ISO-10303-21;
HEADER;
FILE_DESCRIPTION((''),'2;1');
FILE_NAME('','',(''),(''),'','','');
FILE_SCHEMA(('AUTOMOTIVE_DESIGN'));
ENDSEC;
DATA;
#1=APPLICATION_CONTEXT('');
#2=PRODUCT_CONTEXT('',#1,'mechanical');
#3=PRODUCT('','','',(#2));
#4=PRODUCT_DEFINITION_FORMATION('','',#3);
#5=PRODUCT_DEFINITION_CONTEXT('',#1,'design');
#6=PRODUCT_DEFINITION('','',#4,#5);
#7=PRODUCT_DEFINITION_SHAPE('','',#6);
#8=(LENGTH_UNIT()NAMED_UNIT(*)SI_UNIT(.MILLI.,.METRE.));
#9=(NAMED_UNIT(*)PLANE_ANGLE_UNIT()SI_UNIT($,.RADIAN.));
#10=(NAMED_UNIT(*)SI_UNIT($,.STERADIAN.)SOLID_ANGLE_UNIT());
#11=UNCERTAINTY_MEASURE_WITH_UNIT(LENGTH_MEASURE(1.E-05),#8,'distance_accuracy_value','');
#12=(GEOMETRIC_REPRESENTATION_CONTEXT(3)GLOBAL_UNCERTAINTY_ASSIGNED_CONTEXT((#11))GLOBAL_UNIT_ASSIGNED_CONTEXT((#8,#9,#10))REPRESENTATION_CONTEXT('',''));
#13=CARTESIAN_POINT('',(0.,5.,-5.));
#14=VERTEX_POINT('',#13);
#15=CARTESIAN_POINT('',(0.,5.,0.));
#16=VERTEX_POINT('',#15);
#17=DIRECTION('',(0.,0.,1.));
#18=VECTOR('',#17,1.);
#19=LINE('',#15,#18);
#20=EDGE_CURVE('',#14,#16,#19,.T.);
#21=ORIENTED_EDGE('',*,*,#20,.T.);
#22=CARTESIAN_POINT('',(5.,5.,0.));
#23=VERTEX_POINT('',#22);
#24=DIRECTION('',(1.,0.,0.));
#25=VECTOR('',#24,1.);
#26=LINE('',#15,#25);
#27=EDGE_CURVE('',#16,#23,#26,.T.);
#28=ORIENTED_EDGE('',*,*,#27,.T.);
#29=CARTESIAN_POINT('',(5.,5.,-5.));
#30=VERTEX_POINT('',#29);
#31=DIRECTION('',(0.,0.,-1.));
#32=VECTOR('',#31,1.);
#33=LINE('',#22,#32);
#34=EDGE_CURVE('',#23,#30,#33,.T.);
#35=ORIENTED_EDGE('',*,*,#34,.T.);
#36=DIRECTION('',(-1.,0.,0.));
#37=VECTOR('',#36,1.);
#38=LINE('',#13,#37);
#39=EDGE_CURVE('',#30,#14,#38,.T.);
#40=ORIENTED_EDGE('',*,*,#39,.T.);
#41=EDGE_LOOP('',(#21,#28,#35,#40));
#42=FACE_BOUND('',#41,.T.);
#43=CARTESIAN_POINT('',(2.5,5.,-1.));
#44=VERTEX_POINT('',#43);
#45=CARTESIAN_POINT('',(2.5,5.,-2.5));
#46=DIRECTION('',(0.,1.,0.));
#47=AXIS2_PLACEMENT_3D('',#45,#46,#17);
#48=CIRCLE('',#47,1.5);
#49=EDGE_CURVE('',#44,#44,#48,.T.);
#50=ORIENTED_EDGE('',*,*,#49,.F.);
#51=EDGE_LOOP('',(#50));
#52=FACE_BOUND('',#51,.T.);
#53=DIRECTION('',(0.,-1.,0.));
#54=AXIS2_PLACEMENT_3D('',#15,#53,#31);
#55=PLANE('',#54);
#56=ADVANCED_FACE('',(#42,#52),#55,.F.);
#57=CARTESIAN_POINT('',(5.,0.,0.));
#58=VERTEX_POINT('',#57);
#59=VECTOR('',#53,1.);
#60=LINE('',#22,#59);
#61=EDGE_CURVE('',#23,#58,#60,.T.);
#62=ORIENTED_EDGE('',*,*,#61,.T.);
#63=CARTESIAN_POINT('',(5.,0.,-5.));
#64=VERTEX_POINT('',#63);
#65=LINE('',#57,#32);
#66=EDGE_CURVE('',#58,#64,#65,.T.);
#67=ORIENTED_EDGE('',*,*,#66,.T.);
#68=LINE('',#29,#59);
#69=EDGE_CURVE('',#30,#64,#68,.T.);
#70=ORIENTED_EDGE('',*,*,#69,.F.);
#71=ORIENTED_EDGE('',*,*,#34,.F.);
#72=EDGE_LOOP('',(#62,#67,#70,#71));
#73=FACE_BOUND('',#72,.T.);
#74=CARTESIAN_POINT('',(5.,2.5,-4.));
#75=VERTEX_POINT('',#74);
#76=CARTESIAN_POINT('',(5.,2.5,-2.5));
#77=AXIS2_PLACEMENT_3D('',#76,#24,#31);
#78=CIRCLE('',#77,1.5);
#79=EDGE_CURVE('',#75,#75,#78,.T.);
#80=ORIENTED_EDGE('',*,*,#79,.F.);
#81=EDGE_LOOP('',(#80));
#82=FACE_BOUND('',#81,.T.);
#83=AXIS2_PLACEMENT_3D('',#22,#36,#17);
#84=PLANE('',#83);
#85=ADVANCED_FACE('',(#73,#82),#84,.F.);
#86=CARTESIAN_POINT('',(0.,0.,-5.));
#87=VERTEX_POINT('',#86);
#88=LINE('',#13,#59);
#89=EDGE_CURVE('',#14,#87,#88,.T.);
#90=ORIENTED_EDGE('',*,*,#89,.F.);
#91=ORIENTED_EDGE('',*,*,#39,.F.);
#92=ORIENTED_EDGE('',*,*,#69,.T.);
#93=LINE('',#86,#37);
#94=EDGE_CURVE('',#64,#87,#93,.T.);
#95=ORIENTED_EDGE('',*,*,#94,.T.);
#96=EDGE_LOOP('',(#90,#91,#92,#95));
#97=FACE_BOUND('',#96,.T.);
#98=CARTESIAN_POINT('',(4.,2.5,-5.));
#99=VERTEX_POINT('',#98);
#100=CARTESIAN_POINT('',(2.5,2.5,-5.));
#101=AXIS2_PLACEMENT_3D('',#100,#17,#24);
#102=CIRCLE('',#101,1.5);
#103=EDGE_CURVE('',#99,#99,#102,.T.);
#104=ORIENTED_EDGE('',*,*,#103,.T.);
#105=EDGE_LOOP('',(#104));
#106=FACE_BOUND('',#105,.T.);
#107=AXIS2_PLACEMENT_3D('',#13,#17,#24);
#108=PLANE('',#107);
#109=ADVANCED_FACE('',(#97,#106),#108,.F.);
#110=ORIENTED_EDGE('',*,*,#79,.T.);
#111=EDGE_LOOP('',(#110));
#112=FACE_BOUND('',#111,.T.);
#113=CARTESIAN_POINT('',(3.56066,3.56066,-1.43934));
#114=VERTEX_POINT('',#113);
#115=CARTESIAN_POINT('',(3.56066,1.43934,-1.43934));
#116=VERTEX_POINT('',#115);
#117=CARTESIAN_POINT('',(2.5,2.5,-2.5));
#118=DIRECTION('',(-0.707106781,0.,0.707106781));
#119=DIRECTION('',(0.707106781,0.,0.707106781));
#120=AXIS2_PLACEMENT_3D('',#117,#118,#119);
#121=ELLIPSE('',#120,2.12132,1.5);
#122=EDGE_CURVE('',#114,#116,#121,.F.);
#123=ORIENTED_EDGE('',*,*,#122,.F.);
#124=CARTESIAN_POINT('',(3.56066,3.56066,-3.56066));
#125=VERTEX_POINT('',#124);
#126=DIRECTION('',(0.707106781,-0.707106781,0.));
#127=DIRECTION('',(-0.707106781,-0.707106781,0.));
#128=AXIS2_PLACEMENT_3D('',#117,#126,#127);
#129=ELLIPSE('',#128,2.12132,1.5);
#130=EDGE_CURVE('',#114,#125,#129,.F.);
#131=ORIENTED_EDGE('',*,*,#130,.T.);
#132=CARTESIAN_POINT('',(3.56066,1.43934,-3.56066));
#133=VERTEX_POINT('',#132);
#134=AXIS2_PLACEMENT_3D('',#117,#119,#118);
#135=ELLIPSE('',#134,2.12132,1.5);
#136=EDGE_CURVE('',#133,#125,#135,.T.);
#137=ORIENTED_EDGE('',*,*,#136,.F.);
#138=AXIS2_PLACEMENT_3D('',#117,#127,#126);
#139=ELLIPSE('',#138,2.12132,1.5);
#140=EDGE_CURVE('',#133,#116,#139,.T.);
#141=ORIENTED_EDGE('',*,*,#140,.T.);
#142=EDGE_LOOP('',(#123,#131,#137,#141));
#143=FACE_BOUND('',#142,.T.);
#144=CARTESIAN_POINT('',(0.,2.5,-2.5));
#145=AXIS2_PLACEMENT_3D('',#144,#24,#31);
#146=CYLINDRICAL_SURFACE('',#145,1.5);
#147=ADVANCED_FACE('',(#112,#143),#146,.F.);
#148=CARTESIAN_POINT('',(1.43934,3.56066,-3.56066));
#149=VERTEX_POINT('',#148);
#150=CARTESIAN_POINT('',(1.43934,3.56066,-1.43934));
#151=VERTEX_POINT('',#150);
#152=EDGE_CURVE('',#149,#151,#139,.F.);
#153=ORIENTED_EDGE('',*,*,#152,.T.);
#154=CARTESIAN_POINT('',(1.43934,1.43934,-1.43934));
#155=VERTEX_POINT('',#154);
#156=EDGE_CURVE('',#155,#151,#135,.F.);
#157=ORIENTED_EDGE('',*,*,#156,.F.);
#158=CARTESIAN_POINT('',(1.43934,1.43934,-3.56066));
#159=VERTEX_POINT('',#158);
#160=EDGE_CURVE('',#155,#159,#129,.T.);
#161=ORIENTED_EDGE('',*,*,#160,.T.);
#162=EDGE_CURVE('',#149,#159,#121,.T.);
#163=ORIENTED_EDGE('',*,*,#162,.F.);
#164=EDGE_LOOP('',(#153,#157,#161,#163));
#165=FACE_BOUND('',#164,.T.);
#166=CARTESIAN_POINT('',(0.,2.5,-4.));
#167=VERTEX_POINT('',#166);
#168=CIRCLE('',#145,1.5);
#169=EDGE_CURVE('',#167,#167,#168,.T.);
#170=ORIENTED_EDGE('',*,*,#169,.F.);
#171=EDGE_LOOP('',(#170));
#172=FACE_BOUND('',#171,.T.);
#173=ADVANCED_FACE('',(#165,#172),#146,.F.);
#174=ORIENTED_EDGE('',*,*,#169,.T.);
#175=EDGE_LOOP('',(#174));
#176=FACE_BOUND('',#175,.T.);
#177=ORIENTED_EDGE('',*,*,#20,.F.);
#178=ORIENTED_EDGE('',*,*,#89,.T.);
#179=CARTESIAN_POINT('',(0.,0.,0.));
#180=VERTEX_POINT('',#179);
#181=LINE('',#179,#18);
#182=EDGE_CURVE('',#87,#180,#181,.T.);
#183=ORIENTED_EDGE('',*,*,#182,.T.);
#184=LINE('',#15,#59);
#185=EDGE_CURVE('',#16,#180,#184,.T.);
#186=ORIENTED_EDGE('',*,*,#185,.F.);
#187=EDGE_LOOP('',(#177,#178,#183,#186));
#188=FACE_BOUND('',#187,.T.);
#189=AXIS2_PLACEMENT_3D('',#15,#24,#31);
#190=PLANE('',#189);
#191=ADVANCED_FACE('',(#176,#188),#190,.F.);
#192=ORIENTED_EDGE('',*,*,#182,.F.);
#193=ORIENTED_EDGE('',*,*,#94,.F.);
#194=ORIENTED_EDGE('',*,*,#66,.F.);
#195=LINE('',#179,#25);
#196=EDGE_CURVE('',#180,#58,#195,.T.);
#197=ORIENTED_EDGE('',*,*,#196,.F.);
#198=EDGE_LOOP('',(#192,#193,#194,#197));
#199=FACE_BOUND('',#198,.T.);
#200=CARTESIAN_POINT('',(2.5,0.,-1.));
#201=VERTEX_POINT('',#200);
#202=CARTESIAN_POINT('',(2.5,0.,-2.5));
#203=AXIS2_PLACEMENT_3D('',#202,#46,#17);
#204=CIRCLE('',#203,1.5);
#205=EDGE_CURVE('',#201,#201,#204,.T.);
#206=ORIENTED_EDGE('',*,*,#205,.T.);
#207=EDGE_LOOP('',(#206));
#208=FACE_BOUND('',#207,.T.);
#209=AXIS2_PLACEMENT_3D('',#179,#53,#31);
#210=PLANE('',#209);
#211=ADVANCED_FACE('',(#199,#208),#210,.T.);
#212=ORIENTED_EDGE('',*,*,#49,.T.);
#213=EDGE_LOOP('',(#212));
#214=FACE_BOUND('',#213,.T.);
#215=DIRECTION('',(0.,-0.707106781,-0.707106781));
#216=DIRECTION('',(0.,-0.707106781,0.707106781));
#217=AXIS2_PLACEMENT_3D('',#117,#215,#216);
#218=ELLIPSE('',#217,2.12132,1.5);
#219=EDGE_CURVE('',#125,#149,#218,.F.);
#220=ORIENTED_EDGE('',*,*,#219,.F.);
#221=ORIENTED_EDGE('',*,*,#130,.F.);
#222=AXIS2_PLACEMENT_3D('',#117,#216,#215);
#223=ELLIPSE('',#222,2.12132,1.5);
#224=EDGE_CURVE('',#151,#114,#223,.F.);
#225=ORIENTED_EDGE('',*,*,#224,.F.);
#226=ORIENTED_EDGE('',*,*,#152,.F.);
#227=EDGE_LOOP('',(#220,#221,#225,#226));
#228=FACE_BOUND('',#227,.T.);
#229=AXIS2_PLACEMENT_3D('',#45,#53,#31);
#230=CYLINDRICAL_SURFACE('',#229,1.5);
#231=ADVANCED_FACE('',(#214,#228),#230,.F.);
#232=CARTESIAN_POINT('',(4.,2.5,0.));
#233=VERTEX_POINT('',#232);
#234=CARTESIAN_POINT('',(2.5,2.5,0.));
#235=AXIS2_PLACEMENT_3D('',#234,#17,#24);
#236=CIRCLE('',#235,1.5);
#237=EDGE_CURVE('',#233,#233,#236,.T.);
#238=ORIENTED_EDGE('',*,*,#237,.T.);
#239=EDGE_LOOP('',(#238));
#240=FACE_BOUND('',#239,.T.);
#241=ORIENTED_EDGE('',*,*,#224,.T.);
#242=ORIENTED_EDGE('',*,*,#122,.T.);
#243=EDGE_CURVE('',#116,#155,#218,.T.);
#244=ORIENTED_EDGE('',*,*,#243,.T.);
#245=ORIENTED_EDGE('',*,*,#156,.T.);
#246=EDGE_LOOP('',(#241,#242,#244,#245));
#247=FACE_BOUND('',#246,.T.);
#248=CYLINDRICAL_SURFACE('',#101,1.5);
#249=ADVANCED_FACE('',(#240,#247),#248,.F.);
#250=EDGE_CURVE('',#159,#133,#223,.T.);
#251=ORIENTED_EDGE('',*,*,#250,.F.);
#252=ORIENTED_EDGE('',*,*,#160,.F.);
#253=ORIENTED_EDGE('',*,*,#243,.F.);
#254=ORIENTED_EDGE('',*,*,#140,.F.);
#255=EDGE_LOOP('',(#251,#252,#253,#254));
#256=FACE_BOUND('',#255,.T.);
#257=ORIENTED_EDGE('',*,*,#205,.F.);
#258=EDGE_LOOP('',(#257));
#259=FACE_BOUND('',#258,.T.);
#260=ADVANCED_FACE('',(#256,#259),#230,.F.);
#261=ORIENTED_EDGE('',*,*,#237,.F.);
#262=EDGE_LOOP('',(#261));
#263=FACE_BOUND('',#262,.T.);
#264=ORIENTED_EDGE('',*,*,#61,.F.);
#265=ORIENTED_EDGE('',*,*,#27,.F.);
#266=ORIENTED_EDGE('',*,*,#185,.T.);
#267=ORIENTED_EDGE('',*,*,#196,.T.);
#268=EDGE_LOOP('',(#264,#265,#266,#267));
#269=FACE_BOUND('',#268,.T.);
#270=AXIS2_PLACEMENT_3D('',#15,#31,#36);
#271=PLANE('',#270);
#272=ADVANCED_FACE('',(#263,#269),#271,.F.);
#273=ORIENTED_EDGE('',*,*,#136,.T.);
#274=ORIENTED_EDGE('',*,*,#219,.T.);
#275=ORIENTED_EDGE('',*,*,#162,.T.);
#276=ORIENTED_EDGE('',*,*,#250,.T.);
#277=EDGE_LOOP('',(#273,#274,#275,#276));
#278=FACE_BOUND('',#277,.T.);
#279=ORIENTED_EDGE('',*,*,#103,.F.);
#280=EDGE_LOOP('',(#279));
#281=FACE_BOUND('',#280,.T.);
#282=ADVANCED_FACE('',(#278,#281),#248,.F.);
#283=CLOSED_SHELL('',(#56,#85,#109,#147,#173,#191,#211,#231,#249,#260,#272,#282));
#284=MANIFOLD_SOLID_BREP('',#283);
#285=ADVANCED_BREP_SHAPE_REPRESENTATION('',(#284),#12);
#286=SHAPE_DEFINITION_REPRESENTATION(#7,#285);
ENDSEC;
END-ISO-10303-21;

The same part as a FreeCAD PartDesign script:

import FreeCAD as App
import Part
import Sketcher
from FreeCAD import Vector
Q = App.Units.Quantity


def add_polygon(sketch, points):
    """Adds a closed chain of lines whose ends are joined by coincident constraints."""
    first, n = sketch.GeometryCount, len(points)
    for a, b in zip(points, points[1:] + points[:1]):
        sketch.addGeometry(Part.LineSegment(App.Vector(*a, 0), App.Vector(*b, 0)), False)
    for i in range(n):
        sketch.addConstraint(Sketcher.Constraint("Coincident", first + i, 2, first + (i + 1) % n, 1))

doc = App.newDocument("Part")
body = doc.addObject("PartDesign::Body", "Body")

# Sketch on XZ plane
sketch1 = body.newObject("Sketcher::SketchObject", "Sketch")
sketch1.AttachmentSupport = (doc.getObject("XZ_Plane"), [""])
sketch1.MapMode = "FlatFace"
add_polygon(sketch1, [(0, -5), (0, 0), (5, 0), (5, -5)])  # lines 0-3
sketch1.addGeometry(Part.Circle(Vector(2.5, -2.5, 0), Vector(0, 0, 1), 1.5), False)  # 4
sketch1.addConstraint([
    Sketcher.Constraint("Vertical", 0),
    Sketcher.Constraint("Horizontal", 1),
    Sketcher.Constraint("Vertical", 2),
    Sketcher.Constraint("Horizontal", 3),
    Sketcher.Constraint("Coincident", 0, 2, -1, 1),
    Sketcher.Constraint("Equal", 3, 0),
    Sketcher.Constraint("Diameter", 4, Q("3 mm")),
    Sketcher.Constraint("DistanceX", 1, 1, 1, 2, Q("5 mm")),
    Sketcher.Constraint("DistanceX", -1, 1, 4, 3, Q("2.5 mm")),
    Sketcher.Constraint("DistanceY", 4, 3, -1, 1, Q("2.5 mm")),
])
pad1 = body.newObject("PartDesign::Pad", "Pad")
pad1.Profile = sketch1
pad1.Length = 5
pad1.Reversed = True

# Sketch on XY plane
sketch2 = body.newObject("Sketcher::SketchObject", "Sketch001")
sketch2.AttachmentSupport = (doc.getObject("XY_Plane"), [""])
sketch2.MapMode = "FlatFace"
sketch2.addGeometry(Part.Circle(Vector(2.5, 2.5, 0), Vector(0, 0, 1), 1.5), False)
sketch2.addConstraint([
    Sketcher.Constraint("Diameter", 0, Q("3 mm")),
    Sketcher.Constraint("DistanceX", -1, 1, 0, 3, Q("2.5 mm")),
    Sketcher.Constraint("DistanceY", -1, 1, 0, 3, Q("2.5 mm")),
])
pocket1 = body.newObject("PartDesign::Pocket", "Pocket")
pocket1.Profile = sketch2
pocket1.Length = 5

# Sketch on YZ plane
sketch3 = body.newObject("Sketcher::SketchObject", "Sketch002")
sketch3.AttachmentSupport = (doc.getObject("YZ_Plane"), [""])
sketch3.MapMode = "FlatFace"
sketch3.AttachmentOffset = App.Placement(Vector(0, 0, 5), App.Rotation())
sketch3.addGeometry(Part.Circle(Vector(2.5, -2.5, 0), Vector(0, 0, 1), 1.5), False)
sketch3.addConstraint([
    Sketcher.Constraint("Diameter", 0, Q("3 mm")),
    Sketcher.Constraint("DistanceX", -1, 1, 0, 3, Q("2.5 mm")),
    Sketcher.Constraint("DistanceY", 0, 3, -1, 1, Q("2.5 mm")),
])
pocket2 = body.newObject("PartDesign::Pocket", "Pocket001")
pocket2.Profile = sketch3
pocket2.Length = 5

doc.recompute()
